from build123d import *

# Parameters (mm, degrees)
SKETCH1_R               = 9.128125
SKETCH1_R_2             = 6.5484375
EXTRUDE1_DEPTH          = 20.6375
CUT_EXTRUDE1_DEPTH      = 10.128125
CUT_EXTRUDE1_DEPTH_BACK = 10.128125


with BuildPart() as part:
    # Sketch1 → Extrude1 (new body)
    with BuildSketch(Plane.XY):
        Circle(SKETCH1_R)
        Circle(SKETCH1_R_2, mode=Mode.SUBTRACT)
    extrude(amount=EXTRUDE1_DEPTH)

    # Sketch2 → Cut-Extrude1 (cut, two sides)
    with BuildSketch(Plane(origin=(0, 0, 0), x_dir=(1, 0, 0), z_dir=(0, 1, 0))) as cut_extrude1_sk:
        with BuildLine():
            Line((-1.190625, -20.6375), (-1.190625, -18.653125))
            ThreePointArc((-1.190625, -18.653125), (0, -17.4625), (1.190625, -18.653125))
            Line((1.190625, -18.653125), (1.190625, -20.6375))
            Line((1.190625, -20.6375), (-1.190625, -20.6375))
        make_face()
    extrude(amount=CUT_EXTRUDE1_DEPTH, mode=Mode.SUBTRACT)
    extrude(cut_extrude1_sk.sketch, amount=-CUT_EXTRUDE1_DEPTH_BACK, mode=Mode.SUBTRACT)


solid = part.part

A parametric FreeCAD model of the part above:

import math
import FreeCAD as App
import Part
import Sketcher

V = App.Vector
Q = App.Units.Quantity

doc = App.newDocument("Part")
params = doc.addObject("Spreadsheet::Sheet", "Params")
for row, (alias, value) in enumerate([
    ("sketch1_diameter", "0.71875 in"),
    ("sketch1_diameter2", "0.515625 in"),
    ("pad1_length", "0.8125 in"),
    ("sketch2_radius", "0.046875 in"),
    ("sketch2_height", "0.078125 in"),
], start=1):
    params.set(f"A{row}", alias)
    params.set(f"B{row}", "=" + value)
    params.setAlias(f"B{row}", alias)

body = doc.addObject("PartDesign::Body", "Body")

sketch1 = body.newObject("Sketcher::SketchObject", "Sketch")
sketch1.AttachmentSupport = (doc.getObject("XY_Plane"), [""])
sketch1.MapMode = "FlatFace"
sketch1.addGeometry([
    Part.Circle(V(0, 0, 0), V(0, 0, 1), 9),
    Part.Circle(V(0, 0, 0), V(0, 0, 1), 7),
], False)
sketch1.addConstraint([
    Sketcher.Constraint("Coincident", 0, 3, -1, 1),
    Sketcher.Constraint("Coincident", 1, 3, -1, 1),
    Sketcher.Constraint("Diameter", 0, Q("0.71875 in")),
    Sketcher.Constraint("Diameter", 1, Q("0.515625 in")),
])
sketch1.setExpression("Constraints[2]", "Params.sketch1_diameter")
sketch1.setExpression("Constraints[3]", "Params.sketch1_diameter2")
pad1 = body.newObject("PartDesign::Pad", "Pad")
pad1.Profile = sketch1
pad1.setExpression("Length", "Params.pad1_length")

sketch2 = body.newObject("Sketcher::SketchObject", "Sketch001")
sketch2.AttachmentSupport = (doc.getObject("XZ_Plane"), [""])
sketch2.MapMode = "FlatFace"
sketch2.addGeometry([
    Part.LineSegment(V(-1.2, 18.7, 0), V(-1.2, 20.6, 0)),
    Part.LineSegment(V(-1.2, 20.6, 0), V(1.2, 20.6, 0)),
    Part.LineSegment(V(1.2, 20.6, 0), V(1.2, 18.7, 0)),
    Part.ArcOfCircle(Part.Circle(V(0, 18.7, 0), V(0, 0, 1), 1.2), math.radians(180), math.radians(360)),
], False)
sketch2.addConstraint([
    Sketcher.Constraint("Coincident", 0, 2, 1, 1),
    Sketcher.Constraint("Coincident", 1, 2, 2, 1),
    Sketcher.Constraint("Tangent", 2, 2, 3, 2),
    Sketcher.Constraint("Tangent", 3, 1, 0, 1),
    Sketcher.Constraint("Vertical", 0),
    Sketcher.Constraint("Horizontal", 1),
    Sketcher.Constraint("Vertical", 2),
    Sketcher.Constraint("PointOnObject", 3, 3, -2),
    Sketcher.Constraint("Radius", 3, Q("0.046875 in")),
    Sketcher.Constraint("DistanceY", 0, 1, 0, 2, Q("0.078125 in")),
    Sketcher.Constraint("DistanceY", -1, 1, 3, 3, Q("0.734375 in")),
])
sketch2.setExpression("Constraints[8]", "Params.sketch2_radius")
sketch2.setExpression("Constraints[9]", "Params.sketch2_height")
pocket1 = body.newObject("PartDesign::Pocket", "Pocket")
pocket1.Profile = sketch2
pocket1.Type = "ThroughAll"
pocket1.Midplane = True

doc.recompute()
